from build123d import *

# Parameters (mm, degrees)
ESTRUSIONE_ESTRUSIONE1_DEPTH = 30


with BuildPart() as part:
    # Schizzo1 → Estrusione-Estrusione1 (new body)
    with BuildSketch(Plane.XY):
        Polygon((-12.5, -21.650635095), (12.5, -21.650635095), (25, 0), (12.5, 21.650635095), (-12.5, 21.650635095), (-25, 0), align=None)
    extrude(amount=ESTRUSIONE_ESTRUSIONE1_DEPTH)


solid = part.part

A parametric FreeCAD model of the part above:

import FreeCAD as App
import Part
import Sketcher
Q = App.Units.Quantity


def add_polygon(sketch, points):
    """Adds a closed chain of lines whose ends are joined by coincident constraints."""
    first, n = sketch.GeometryCount, len(points)
    for a, b in zip(points, points[1:] + points[:1]):
        sketch.addGeometry(Part.LineSegment(App.Vector(*a, 0), App.Vector(*b, 0)), False)
    for i in range(n):
        sketch.addConstraint(Sketcher.Constraint("Coincident", first + i, 2, first + (i + 1) % n, 1))

doc = App.newDocument("Part")
body = doc.addObject("PartDesign::Body", "Body")

# Sketch on XY plane
sketch1 = body.newObject("Sketcher::SketchObject", "Sketch")
sketch1.AttachmentSupport = (doc.getObject("XY_Plane"), [""])
sketch1.MapMode = "FlatFace"
add_polygon(sketch1, [(-12, -22), (12, -22), (25, 0), (12, 22), (-12, 22), (-25, 0)])  # lines 0-5
sketch1.addConstraint([
    Sketcher.Constraint("Horizontal", 0),
    Sketcher.Constraint("Horizontal", 3),
    Sketcher.Constraint("Symmetric", 0, 2, 3, 2, -1, 1),
    Sketcher.Constraint("Symmetric", 1, 2, 4, 2, -1, 1),
    Sketcher.Constraint("PointOnObject", 1, 2, -1),
    Sketcher.Constraint("Parallel", 2, 5),
    Sketcher.Constraint("Vertical", 0, 2, 2, 2),
    Sketcher.Constraint("DistanceX", 0, 1, 0, 2, 25.0),
    Sketcher.Constraint("Angle", 1, Q("60 deg")),
    Sketcher.Constraint("Distance", 1, 25.0),
])
pad1 = body.newObject("PartDesign::Pad", "Pad")
pad1.Profile = sketch1
pad1.Length = 30

doc.recompute()
